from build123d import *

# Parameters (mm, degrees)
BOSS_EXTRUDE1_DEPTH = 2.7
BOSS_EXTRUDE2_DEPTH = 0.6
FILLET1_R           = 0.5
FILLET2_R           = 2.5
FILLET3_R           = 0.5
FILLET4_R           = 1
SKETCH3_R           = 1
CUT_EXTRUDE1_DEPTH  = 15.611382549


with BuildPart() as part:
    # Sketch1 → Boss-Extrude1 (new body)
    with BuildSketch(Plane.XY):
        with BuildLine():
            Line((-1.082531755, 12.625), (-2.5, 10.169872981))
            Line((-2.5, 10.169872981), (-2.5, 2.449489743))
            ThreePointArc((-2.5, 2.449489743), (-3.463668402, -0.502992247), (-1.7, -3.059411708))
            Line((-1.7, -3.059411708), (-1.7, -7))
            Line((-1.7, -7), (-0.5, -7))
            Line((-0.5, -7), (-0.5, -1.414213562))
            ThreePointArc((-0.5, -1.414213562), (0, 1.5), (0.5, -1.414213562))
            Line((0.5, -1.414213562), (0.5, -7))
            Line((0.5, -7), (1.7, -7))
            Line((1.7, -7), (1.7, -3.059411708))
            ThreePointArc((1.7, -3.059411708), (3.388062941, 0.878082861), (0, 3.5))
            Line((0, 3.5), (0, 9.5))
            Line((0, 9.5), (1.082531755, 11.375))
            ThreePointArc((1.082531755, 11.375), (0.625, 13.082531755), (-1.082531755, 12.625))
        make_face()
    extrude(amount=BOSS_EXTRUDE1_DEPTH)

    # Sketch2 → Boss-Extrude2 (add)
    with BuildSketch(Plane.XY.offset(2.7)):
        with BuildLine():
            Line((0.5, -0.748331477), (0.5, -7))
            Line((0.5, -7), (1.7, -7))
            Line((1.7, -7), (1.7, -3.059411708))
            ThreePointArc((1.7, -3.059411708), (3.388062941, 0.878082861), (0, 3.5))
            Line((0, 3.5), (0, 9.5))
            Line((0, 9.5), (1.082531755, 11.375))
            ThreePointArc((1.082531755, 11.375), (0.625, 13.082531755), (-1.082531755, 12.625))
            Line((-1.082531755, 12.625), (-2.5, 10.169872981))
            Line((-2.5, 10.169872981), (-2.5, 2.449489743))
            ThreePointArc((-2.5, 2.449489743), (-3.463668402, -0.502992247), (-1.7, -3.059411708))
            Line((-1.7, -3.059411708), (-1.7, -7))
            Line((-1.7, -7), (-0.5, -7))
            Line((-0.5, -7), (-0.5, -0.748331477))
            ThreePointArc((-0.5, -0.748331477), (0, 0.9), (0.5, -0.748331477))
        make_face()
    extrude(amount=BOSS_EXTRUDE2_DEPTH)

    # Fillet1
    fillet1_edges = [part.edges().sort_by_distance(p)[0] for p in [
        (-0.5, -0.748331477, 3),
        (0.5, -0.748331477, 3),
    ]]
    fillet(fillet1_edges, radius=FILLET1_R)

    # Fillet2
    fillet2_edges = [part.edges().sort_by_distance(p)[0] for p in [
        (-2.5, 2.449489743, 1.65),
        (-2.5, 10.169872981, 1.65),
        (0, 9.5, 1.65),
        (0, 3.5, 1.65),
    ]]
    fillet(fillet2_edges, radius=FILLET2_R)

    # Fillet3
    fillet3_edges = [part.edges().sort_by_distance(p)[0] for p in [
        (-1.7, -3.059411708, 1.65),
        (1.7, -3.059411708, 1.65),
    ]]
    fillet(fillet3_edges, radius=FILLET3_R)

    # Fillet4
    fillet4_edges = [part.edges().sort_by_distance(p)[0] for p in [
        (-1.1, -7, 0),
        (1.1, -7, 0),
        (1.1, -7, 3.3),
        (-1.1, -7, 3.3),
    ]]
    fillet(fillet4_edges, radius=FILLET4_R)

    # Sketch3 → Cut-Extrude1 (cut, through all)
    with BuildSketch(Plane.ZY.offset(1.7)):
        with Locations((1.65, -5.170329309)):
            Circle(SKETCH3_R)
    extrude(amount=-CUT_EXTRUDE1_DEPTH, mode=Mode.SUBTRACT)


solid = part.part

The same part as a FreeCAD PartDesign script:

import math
import FreeCAD as App
import Part
import Sketcher
from FreeCAD import Vector
Q = App.Units.Quantity


def edges_at(feature, points):
    """Names of the edges that pass closest to the given points."""
    edges = feature.Shape.Edges
    near = lambda p: min(range(len(edges)), key=lambda i: edges[i].distToShape(Part.Vertex(*p))[0])
    return sorted({f"Edge{near(p) + 1}" for p in points})

doc = App.newDocument("Part")
body = doc.addObject("PartDesign::Body", "Body")

# Sketch on XY plane
sketch1 = body.newObject("Sketcher::SketchObject", "Sketch")
sketch1.AttachmentSupport = (doc.getObject("XY_Plane"), [""])
sketch1.MapMode = "FlatFace"
sketch1.addGeometry(Part.LineSegment(Vector(-1.082532, 12.625, 0), Vector(-2.5, 10.169873, 0)), False)
sketch1.addGeometry(Part.LineSegment(Vector(-2.5, 10.169873, 0), Vector(-2.5, 2.44949, 0)), False)
sketch1.addGeometry(Part.ArcOfCircle(Part.Circle(Vector(0, 0, 0), Vector(0, 0, 1), 3.5), math.radians(135.584691), math.radians(240.940719)), False)
sketch1.addGeometry(Part.LineSegment(Vector(-1.7, -3.059412, 0), Vector(-1.7, -7, 0)), False)
sketch1.addGeometry(Part.LineSegment(Vector(-1.7, -7, 0), Vector(-0.5, -7, 0)), False)
sketch1.addGeometry(Part.LineSegment(Vector(-0.5, -7, 0), Vector(-0.5, -1.414214, 0)), False)
sketch1.addGeometry(Part.ArcOfCircle(Part.Circle(Vector(0, 0, 0), Vector(0, 0, 1), 1.5), math.radians(-70.528779), math.radians(250.528779)), False)
sketch1.addGeometry(Part.LineSegment(Vector(0.5, -1.414214, 0), Vector(0.5, -7, 0)), False)
sketch1.addGeometry(Part.LineSegment(Vector(0.5, -7, 0), Vector(1.7, -7, 0)), False)
sketch1.addGeometry(Part.LineSegment(Vector(1.7, -7, 0), Vector(1.7, -3.059412, 0)), False)
sketch1.addGeometry(Part.ArcOfCircle(Part.Circle(Vector(0, 0, 0), Vector(0, 0, 1), 3.5), math.radians(-60.940719), math.radians(90)), False)
sketch1.addGeometry(Part.LineSegment(Vector(0, 3.5, 0), Vector(0, 9.5, 0)), False)
sketch1.addGeometry(Part.LineSegment(Vector(0, 9.5, 0), Vector(1.082532, 11.375, 0)), False)
sketch1.addGeometry(Part.ArcOfCircle(Part.Circle(Vector(0, 12, 0), Vector(0, 0, 1), 1.25), math.radians(-30), math.radians(150)), False)
sketch1.addConstraint(Sketcher.Constraint("Coincident", 0, 2, 1, 1))
sketch1.addConstraint(Sketcher.Constraint("Coincident", 1, 2, 2, 1))
sketch1.addConstraint(Sketcher.Constraint("Coincident", 2, 2, 3, 1))
sketch1.addConstraint(Sketcher.Constraint("Coincident", 3, 2, 4, 1))
sketch1.addConstraint(Sketcher.Constraint("Coincident", 4, 2, 5, 1))
sketch1.addConstraint(Sketcher.Constraint("Coincident", 5, 2, 6, 2))
sketch1.addConstraint(Sketcher.Constraint("Coincident", 6, 1, 7, 1))
sketch1.addConstraint(Sketcher.Constraint("Coincident", 7, 2, 8, 1))
sketch1.addConstraint(Sketcher.Constraint("Coincident", 8, 2, 9, 1))
sketch1.addConstraint(Sketcher.Constraint("Coincident", 9, 2, 10, 1))
sketch1.addConstraint(Sketcher.Constraint("Coincident", 10, 2, 11, 1))
sketch1.addConstraint(Sketcher.Constraint("Coincident", 11, 2, 12, 1))
sketch1.addConstraint(Sketcher.Constraint("Tangent", 12, 2, 13, 1))
sketch1.addConstraint(Sketcher.Constraint("Tangent", 13, 2, 0, 1))
sketch1.addConstraint(Sketcher.Constraint("Vertical", 1))
sketch1.addConstraint(Sketcher.Constraint("Vertical", 3))
sketch1.addConstraint(Sketcher.Constraint("Horizontal", 4))
sketch1.addConstraint(Sketcher.Constraint("Vertical", 5))
sketch1.addConstraint(Sketcher.Constraint("Vertical", 7))
sketch1.addConstraint(Sketcher.Constraint("Horizontal", 8))
sketch1.addConstraint(Sketcher.Constraint("Vertical", 9))
sketch1.addConstraint(Sketcher.Constraint("Vertical", 11))
sketch1.addConstraint(Sketcher.Constraint("Coincident", 2, 3, -1, 1))
sketch1.addConstraint(Sketcher.Constraint("Coincident", 6, 3, -1, 1))
sketch1.addConstraint(Sketcher.Constraint("Coincident", 10, 3, -1, 1))
sketch1.addConstraint(Sketcher.Constraint("Equal", 2, 10))
sketch1.addConstraint(Sketcher.Constraint("Symmetric", 4, 2, 7, 2, -2))
sketch1.addConstraint(Sketcher.Constraint("PointOnObject", 13, 3, -2))
sketch1.addConstraint(Sketcher.Constraint("PointOnObject", 10, 2, -2))
sketch1.addConstraint(Sketcher.Constraint("Parallel", 0, 12))
sketch1.addConstraint(Sketcher.Constraint("Horizontal", 2, 2, 9, 2))
sketch1.addConstraint(Sketcher.Constraint("Radius", 2, 3.5))
sketch1.addConstraint(Sketcher.Constraint("Radius", 6, 1.5))
sketch1.addConstraint(Sketcher.Constraint("DistanceY", 11, 1, 11, 2, 6.0))
sketch1.addConstraint(Sketcher.Constraint("Angle", 0, Q("-120 deg")))
sketch1.addConstraint(Sketcher.Constraint("Radius", 13, 1.25))
sketch1.addConstraint(Sketcher.Constraint("DistanceX", 4, 1, 4, 2, 1.2))
sketch1.addConstraint(Sketcher.Constraint("DistanceY", 3, 2, -1, 1, 7.0))
sketch1.addConstraint(Sketcher.Constraint("DistanceX", 1, 2, 5, 2, 2.0))
sketch1.addConstraint(Sketcher.Constraint("DistanceX", 5, 2, 6, 1, 1.0))
pad1 = body.newObject("PartDesign::Pad", "Pad")
pad1.Profile = sketch1
pad1.Length = 2.7

# Sketch on XY plane
sketch2 = body.newObject("Sketcher::SketchObject", "Sketch001")
sketch2.AttachmentSupport = (doc.getObject("XY_Plane"), [""])
sketch2.MapMode = "FlatFace"
sketch2.AttachmentOffset = App.Placement(Vector(0, 0, 2.7), App.Rotation())
sketch2.addGeometry(Part.LineSegment(Vector(0.5, -0.748331, 0), Vector(0.5, -7, 0)), False)
sketch2.addGeometry(Part.LineSegment(Vector(0.5, -7, 0), Vector(1.7, -7, 0)), False)
sketch2.addGeometry(Part.LineSegment(Vector(1.7, -7, 0), Vector(1.7, -3.059412, 0)), False)
sketch2.addGeometry(Part.ArcOfCircle(Part.Circle(Vector(0, 0, 0), Vector(0, 0, 1), 3.5), math.radians(-60.940719), math.radians(90)), False)
sketch2.addGeometry(Part.LineSegment(Vector(0, 3.5, 0), Vector(0, 9.5, 0)), False)
sketch2.addGeometry(Part.LineSegment(Vector(0, 9.5, 0), Vector(1.082532, 11.375, 0)), False)
sketch2.addGeometry(Part.ArcOfCircle(Part.Circle(Vector(0, 12, 0), Vector(0, 0, 1), 1.25), math.radians(-30), math.radians(150)), False)
sketch2.addGeometry(Part.LineSegment(Vector(-1.082532, 12.625, 0), Vector(-2.5, 10.169873, 0)), False)
sketch2.addGeometry(Part.LineSegment(Vector(-2.5, 10.169873, 0), Vector(-2.5, 2.44949, 0)), False)
sketch2.addGeometry(Part.ArcOfCircle(Part.Circle(Vector(0, 0, 0), Vector(0, 0, 1), 3.5), math.radians(135.584691), math.radians(240.940719)), False)
sketch2.addGeometry(Part.LineSegment(Vector(-1.7, -3.059412, 0), Vector(-1.7, -7, 0)), False)
sketch2.addGeometry(Part.LineSegment(Vector(-1.7, -7, 0), Vector(-0.5, -7, 0)), False)
sketch2.addGeometry(Part.LineSegment(Vector(-0.5, -7, 0), Vector(-0.5, -0.748331, 0)), False)
sketch2.addGeometry(Part.ArcOfCircle(Part.Circle(Vector(0, 0, 0), Vector(0, 0, 1), 0.9), math.radians(-56.251011), math.radians(236.251011)), False)
sketch2.addConstraint(Sketcher.Constraint("Coincident", 0, 2, 1, 1))
sketch2.addConstraint(Sketcher.Constraint("Coincident", 1, 2, 2, 1))
sketch2.addConstraint(Sketcher.Constraint("Coincident", 2, 2, 3, 1))
sketch2.addConstraint(Sketcher.Constraint("Coincident", 3, 2, 4, 1))
sketch2.addConstraint(Sketcher.Constraint("Coincident", 4, 2, 5, 1))
sketch2.addConstraint(Sketcher.Constraint("Tangent", 5, 2, 6, 1))
sketch2.addConstraint(Sketcher.Constraint("Tangent", 6, 2, 7, 1))
sketch2.addConstraint(Sketcher.Constraint("Coincident", 7, 2, 8, 1))
sketch2.addConstraint(Sketcher.Constraint("Coincident", 8, 2, 9, 1))
sketch2.addConstraint(Sketcher.Constraint("Coincident", 9, 2, 10, 1))
sketch2.addConstraint(Sketcher.Constraint("Coincident", 10, 2, 11, 1))
sketch2.addConstraint(Sketcher.Constraint("Coincident", 11, 2, 12, 1))
sketch2.addConstraint(Sketcher.Constraint("Coincident", 12, 2, 13, 2))
sketch2.addConstraint(Sketcher.Constraint("Coincident", 13, 1, 0, 1))
sketch2.addConstraint(Sketcher.Constraint("Vertical", 0))
sketch2.addConstraint(Sketcher.Constraint("Horizontal", 1))
sketch2.addConstraint(Sketcher.Constraint("Vertical", 2))
sketch2.addConstraint(Sketcher.Constraint("Vertical", 4))
sketch2.addConstraint(Sketcher.Constraint("Vertical", 8))
sketch2.addConstraint(Sketcher.Constraint("Vertical", 10))
sketch2.addConstraint(Sketcher.Constraint("Horizontal", 11))
sketch2.addConstraint(Sketcher.Constraint("Vertical", 12))
sketch2.addConstraint(Sketcher.Constraint("Coincident", 3, 3, -1, 1))
sketch2.addConstraint(Sketcher.Constraint("Coincident", 9, 3, -1, 1))
sketch2.addConstraint(Sketcher.Constraint("Coincident", 13, 3, -1, 1))
sketch2.addConstraint(Sketcher.Constraint("Equal", 3, 9))
sketch2.addConstraint(Sketcher.Constraint("Symmetric", 1, 2, 10, 2, -2))
sketch2.addConstraint(Sketcher.Constraint("PointOnObject", 6, 3, -2))
sketch2.addConstraint(Sketcher.Constraint("PointOnObject", 3, 2, -2))
sketch2.addConstraint(Sketcher.Constraint("Parallel", 5, 7))
sketch2.addConstraint(Sketcher.Constraint("Horizontal", 12, 2, 13, 1))
sketch2.addConstraint(Sketcher.Constraint("Radius", 3, 3.5))
sketch2.addConstraint(Sketcher.Constraint("Radius", 13, 0.9))
sketch2.addConstraint(Sketcher.Constraint("DistanceY", 4, 1, 4, 2, 6.0))
sketch2.addConstraint(Sketcher.Constraint("Angle", 5, Q("60 deg")))
sketch2.addConstraint(Sketcher.Constraint("Radius", 6, 1.25))
sketch2.addConstraint(Sketcher.Constraint("DistanceX", 1, 1, 1, 2, 1.2))
sketch2.addConstraint(Sketcher.Constraint("DistanceY", 0, 2, -1, 1, 7.0))
sketch2.addConstraint(Sketcher.Constraint("DistanceX", 11, 2, 0, 2, 1.0))
sketch2.addConstraint(Sketcher.Constraint("DistanceX", 7, 2, -1, 1, 2.5))
pad2 = body.newObject("PartDesign::Pad", "Pad001")
pad2.Profile = sketch2
pad2.Length = 0.6
doc.recompute()

fillet = body.newObject("PartDesign::Fillet", "Fillet")
fillet.Base = (pad2, edges_at(pad2, [(-0.5, -0.748, 3), (0.5, -0.748, 3)]))
fillet.Radius = 0.5
doc.recompute()

fillet2 = body.newObject("PartDesign::Fillet", "Fillet001")
fillet2.Base = (fillet, edges_at(fillet, [
    (-2.5, 2.449, 1.65),
    (-2.5, 10.17, 1.65),
    (0, 9.5, 1.65),
    (0, 3.5, 1.65),
]))
fillet2.Radius = 2.5
doc.recompute()

fillet3 = body.newObject("PartDesign::Fillet", "Fillet002")
fillet3.Base = (fillet2, edges_at(fillet2, [(-1.7, -3.059, 1.65), (1.7, -3.059, 1.65)]))
fillet3.Radius = 0.5
doc.recompute()

fillet4 = body.newObject("PartDesign::Fillet", "Fillet003")
fillet4.Base = (fillet3, edges_at(fillet3, [
    (-1.1, -7, 0),
    (1.1, -7, 0),
    (1.1, -7, 3.3),
    (-1.1, -7, 3.3),
]))
fillet4.Radius = 1

# Sketch on YZ plane
sketch3 = body.newObject("Sketcher::SketchObject", "Sketch002")
sketch3.AttachmentSupport = (doc.getObject("YZ_Plane"), [""])
sketch3.MapMode = "FlatFace"
sketch3.AttachmentOffset = App.Placement(Vector(0, 0, -1.7), App.Rotation())
sketch3.addGeometry(Part.Circle(Vector(-5.170329, 1.65, 0), Vector(0, 0, 1), 1), False)
sketch3.addConstraint(Sketcher.Constraint("Diameter", 0, 2.0))
sketch3.addConstraint(Sketcher.Constraint("DistanceY", -1, 1, 0, 3, 1.65))
sketch3.addConstraint(Sketcher.Constraint("DistanceX", 0, 3, -1, 1, 5.170329))
pocket1 = body.newObject("PartDesign::Pocket", "Pocket")
pocket1.Profile = sketch3
pocket1.Type = "ThroughAll"
pocket1.Reversed = True

doc.recompute()
